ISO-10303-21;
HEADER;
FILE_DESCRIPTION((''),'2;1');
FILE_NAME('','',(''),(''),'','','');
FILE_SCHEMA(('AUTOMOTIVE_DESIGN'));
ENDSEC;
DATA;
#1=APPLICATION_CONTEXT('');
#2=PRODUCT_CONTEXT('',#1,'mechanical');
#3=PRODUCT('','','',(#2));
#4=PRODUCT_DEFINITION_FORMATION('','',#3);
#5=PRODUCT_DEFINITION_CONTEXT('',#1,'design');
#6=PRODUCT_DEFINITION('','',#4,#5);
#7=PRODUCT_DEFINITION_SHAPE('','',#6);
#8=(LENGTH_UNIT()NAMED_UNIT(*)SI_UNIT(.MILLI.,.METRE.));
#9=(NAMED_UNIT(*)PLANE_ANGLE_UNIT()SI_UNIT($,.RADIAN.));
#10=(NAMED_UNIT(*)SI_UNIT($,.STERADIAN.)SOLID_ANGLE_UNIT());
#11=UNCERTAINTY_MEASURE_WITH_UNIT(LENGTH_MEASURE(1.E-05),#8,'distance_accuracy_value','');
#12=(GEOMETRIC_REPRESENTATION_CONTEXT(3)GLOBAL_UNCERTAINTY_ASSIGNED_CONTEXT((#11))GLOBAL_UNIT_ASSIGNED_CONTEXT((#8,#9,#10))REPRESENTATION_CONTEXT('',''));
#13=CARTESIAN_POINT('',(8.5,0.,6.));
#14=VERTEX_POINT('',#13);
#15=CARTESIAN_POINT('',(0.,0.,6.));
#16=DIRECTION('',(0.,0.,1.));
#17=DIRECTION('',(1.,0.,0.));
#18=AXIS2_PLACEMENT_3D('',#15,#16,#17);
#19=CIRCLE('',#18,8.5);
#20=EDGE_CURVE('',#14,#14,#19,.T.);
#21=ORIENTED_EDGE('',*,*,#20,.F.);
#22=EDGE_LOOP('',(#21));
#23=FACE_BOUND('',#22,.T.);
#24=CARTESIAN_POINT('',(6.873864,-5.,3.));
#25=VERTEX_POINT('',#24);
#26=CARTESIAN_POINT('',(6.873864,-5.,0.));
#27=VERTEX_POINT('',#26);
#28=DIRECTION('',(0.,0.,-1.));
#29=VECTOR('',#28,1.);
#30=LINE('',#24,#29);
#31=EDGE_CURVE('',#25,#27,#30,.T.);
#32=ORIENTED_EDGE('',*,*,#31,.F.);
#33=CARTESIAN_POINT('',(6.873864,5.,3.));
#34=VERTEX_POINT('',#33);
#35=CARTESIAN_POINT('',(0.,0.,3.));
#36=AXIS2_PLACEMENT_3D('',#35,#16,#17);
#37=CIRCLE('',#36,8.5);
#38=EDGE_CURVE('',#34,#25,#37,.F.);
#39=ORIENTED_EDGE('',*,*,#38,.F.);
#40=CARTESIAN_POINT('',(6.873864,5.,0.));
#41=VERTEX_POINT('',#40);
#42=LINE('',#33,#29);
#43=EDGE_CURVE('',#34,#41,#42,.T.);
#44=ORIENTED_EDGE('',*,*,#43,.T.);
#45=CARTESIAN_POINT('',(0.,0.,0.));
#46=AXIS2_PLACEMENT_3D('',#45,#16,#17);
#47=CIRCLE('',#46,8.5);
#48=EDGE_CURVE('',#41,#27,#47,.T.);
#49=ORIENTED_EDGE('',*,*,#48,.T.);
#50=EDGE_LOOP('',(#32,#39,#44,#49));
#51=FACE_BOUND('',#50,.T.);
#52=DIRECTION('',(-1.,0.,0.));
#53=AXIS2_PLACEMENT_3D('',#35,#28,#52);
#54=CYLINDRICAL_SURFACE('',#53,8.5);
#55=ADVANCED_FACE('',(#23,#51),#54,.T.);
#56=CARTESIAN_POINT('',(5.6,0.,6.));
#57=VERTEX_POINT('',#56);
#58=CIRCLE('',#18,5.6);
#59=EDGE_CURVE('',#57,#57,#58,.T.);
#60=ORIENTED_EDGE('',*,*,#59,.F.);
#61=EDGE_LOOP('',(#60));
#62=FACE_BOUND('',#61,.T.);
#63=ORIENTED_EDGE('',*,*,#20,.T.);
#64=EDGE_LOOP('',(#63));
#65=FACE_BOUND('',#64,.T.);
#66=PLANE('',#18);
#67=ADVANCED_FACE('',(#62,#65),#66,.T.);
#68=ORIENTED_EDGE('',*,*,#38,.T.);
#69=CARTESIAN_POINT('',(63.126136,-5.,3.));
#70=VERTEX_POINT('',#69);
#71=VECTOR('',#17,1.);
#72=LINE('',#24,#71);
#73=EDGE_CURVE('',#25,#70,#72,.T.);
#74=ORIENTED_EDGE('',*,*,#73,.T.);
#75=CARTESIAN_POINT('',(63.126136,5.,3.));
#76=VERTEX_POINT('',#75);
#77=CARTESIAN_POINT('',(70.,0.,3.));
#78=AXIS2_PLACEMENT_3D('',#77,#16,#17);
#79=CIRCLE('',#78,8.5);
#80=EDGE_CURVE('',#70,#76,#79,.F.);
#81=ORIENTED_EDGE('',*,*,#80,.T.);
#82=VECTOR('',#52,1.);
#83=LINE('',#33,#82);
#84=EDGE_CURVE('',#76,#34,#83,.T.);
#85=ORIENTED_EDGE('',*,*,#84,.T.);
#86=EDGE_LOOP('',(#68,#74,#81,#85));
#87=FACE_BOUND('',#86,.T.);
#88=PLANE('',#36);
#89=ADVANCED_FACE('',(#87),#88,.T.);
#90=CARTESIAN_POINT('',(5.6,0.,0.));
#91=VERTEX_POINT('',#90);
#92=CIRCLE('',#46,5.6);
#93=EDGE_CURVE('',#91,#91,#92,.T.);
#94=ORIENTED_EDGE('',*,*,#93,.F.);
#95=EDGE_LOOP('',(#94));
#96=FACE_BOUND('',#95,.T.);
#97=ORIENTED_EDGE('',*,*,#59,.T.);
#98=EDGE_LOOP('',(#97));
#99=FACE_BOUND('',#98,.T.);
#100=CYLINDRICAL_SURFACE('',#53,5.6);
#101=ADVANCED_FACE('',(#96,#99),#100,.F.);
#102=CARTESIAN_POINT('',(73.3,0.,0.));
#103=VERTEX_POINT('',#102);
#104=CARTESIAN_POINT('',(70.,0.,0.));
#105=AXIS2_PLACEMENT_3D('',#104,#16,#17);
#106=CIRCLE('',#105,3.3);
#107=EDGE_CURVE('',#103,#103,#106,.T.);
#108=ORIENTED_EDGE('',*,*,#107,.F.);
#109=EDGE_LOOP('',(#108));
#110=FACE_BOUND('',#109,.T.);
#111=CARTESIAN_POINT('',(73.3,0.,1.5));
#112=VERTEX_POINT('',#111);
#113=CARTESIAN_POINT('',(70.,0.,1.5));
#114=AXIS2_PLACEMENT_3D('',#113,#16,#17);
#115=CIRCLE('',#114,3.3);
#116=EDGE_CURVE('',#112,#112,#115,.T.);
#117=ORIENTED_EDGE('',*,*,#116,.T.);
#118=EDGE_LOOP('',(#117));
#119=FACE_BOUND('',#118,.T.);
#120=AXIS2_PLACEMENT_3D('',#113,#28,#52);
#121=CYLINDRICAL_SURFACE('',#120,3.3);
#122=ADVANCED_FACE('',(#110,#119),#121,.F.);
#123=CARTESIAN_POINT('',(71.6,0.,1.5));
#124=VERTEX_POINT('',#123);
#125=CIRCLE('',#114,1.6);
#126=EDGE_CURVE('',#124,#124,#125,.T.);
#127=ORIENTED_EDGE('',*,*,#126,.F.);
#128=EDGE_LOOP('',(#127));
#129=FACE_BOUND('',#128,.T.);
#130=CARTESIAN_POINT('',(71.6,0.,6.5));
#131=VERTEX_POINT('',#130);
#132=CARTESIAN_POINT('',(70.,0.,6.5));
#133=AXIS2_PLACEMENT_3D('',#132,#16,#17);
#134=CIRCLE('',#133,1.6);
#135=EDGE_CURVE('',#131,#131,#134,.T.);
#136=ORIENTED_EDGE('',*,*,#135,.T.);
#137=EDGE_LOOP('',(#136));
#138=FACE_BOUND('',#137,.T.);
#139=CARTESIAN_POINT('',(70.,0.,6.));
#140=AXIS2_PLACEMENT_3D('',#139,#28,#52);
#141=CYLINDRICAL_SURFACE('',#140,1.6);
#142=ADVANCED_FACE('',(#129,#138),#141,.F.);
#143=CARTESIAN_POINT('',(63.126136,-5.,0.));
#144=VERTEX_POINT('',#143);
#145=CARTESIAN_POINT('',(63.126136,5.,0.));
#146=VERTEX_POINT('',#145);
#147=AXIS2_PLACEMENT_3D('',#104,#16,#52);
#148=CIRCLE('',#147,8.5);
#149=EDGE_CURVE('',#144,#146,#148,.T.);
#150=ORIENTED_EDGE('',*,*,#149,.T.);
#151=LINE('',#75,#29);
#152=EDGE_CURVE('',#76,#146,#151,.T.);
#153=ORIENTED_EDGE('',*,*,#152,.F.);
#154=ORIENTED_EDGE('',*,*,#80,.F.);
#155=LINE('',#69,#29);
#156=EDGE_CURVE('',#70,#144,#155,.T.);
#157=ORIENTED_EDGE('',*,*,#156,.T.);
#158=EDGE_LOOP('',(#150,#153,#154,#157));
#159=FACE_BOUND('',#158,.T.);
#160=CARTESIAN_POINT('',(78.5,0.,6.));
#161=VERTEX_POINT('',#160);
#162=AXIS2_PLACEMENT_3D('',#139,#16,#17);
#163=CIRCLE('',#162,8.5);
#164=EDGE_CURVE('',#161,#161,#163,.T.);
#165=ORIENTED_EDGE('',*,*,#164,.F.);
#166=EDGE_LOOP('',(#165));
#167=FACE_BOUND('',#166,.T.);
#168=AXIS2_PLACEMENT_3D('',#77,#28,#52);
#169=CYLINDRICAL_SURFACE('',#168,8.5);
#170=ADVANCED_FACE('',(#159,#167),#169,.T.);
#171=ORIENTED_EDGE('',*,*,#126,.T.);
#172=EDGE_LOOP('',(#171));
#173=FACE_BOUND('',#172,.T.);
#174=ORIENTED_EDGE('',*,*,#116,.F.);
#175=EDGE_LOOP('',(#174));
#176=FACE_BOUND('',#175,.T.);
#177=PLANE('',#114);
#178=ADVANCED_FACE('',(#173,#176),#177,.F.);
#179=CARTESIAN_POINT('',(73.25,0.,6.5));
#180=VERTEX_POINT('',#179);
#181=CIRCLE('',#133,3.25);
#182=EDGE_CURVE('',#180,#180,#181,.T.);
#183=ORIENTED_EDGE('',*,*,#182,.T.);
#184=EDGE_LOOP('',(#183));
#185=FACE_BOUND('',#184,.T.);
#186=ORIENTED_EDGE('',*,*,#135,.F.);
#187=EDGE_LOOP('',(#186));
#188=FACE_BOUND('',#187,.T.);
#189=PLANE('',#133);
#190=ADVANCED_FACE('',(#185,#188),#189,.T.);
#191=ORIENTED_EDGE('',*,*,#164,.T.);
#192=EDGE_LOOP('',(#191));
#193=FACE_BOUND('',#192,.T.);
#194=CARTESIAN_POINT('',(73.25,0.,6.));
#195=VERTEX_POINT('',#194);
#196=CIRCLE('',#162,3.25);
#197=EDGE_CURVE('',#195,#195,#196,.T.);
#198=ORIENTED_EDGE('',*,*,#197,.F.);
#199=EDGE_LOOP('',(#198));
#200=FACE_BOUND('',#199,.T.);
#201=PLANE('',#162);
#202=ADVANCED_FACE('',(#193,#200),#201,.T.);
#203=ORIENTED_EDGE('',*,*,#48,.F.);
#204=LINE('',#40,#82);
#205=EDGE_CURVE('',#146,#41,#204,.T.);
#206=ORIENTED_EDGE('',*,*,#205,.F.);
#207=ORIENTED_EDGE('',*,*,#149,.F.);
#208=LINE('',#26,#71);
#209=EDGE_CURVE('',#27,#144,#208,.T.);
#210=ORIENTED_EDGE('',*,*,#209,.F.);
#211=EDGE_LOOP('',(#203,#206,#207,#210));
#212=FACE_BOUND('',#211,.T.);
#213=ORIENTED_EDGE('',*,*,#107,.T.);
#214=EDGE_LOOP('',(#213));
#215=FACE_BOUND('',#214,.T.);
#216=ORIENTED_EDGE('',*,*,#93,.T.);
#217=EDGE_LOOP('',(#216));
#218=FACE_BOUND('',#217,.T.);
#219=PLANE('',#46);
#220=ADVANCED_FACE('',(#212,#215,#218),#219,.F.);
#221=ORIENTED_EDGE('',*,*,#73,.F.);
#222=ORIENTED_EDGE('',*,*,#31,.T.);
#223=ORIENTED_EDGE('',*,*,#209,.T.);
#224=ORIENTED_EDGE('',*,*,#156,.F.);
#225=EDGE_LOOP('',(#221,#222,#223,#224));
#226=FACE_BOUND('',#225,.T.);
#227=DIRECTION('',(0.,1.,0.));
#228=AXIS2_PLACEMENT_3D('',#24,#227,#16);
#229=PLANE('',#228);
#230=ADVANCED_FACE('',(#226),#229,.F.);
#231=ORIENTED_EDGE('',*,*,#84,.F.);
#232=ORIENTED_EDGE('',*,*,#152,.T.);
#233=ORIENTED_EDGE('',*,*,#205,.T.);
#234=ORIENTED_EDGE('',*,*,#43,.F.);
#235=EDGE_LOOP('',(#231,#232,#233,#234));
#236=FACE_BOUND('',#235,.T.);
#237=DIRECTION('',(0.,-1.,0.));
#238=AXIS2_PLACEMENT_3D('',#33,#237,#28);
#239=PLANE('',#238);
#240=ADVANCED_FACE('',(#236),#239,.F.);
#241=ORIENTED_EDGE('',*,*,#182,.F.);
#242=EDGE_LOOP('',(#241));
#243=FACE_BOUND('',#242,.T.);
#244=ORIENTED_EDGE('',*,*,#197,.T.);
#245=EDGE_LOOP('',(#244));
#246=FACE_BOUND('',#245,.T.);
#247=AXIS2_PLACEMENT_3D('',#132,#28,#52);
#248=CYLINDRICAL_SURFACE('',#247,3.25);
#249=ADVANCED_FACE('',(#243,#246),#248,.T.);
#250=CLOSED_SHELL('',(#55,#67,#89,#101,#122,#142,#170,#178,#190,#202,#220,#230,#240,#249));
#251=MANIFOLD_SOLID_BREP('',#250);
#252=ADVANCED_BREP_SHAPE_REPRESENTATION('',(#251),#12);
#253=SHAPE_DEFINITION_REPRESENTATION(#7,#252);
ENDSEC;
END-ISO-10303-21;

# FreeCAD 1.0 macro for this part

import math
import FreeCAD as App
import Part
import Sketcher
Q = App.Units.Quantity

doc = App.newDocument("Part")
body = doc.addObject("PartDesign::Body", "Body")

# Sketch on XY plane
sketch1 = body.newObject("Sketcher::SketchObject", "Sketch")
sketch1.AttachmentSupport = (doc.getObject("XY_Plane"), [""])
sketch1.MapMode = "FlatFace"
sketch1.addGeometry([
    Part.LineSegment(App.Vector(63, 5, 0), App.Vector(7, 5, 0)),  # 0
    Part.ArcOfCircle(Part.Circle(App.Vector(0, 0, 0), App.Vector(0, 0, 1), 8), math.radians(36), math.radians(324)),  # 1
    Part.LineSegment(App.Vector(7, -5, 0), App.Vector(63, -5, 0)),  # 2
    Part.ArcOfCircle(Part.Circle(App.Vector(70, 0, 0), App.Vector(0, 0, 1), 8), math.radians(-144), math.radians(144)),  # 3
    Part.Circle(App.Vector(0, 0, 0), App.Vector(0, 0, 1), 6),  # 4
], False)
sketch1.addConstraint([
    Sketcher.Constraint("Coincident", 0, 2, 1, 1),
    Sketcher.Constraint("Coincident", 1, 2, 2, 1),
    Sketcher.Constraint("Coincident", 2, 2, 3, 1),
    Sketcher.Constraint("Coincident", 3, 2, 0, 1),
    Sketcher.Constraint("Horizontal", 0),
    Sketcher.Constraint("Horizontal", 2),
    Sketcher.Constraint("Coincident", 1, 3, -1, 1),
    Sketcher.Constraint("Coincident", 4, 3, -1, 1),
    Sketcher.Constraint("Equal", 1, 3),
    Sketcher.Constraint("Symmetric", 2, 2, 3, 2, -1),
    Sketcher.Constraint("Diameter", 4, Q("11.2 mm")),
    Sketcher.Constraint("Radius", 1, Q("8.5 mm")),
    Sketcher.Constraint("DistanceX", -1, 1, 3, 3, Q("70 mm")),
    Sketcher.Constraint("DistanceY", -1, 1, 0, 2, Q("5 mm")),
])
pad1 = body.newObject("PartDesign::Pad", "Pad")
pad1.Profile = sketch1
pad1.Length = 3

# Sketch on XY plane
sketch2 = body.newObject("Sketcher::SketchObject", "Sketch001")
sketch2.AttachmentSupport = (doc.getObject("XY_Plane"), [""])
sketch2.MapMode = "FlatFace"
sketch2.addGeometry([
    Part.Circle(App.Vector(0, 0, 0), App.Vector(0, 0, 1), 8),
    Part.Circle(App.Vector(0, 0, 0), App.Vector(0, 0, 1), 6),
], False)
sketch2.addConstraint([
    Sketcher.Constraint("Coincident", 0, 3, -1, 1),
    Sketcher.Constraint("Coincident", 1, 3, -1, 1),
    Sketcher.Constraint("Diameter", 0, Q("17 mm")),
    Sketcher.Constraint("Diameter", 1, Q("11.2 mm")),
])
pad2 = body.newObject("PartDesign::Pad", "Pad001")
pad2.Profile = sketch2
pad2.Length = 6

# Sketch on XY plane
sketch3 = body.newObject("Sketcher::SketchObject", "Sketch002")
sketch3.AttachmentSupport = (doc.getObject("XY_Plane"), [""])
sketch3.MapMode = "FlatFace"
sketch3.addGeometry(Part.Circle(App.Vector(70, 0, 0), App.Vector(0, 0, 1), 8), False)
sketch3.addConstraint([
    Sketcher.Constraint("PointOnObject", 0, 3, -1),
    Sketcher.Constraint("Diameter", 0, Q("17 mm")),
    Sketcher.Constraint("DistanceX", -1, 1, 0, 3, Q("70 mm")),
])
pad3 = body.newObject("PartDesign::Pad", "Pad002")
pad3.Profile = sketch3
pad3.Length = 6

# Sketch on XY plane
sketch4 = body.newObject("Sketcher::SketchObject", "Sketch003")
sketch4.AttachmentSupport = (doc.getObject("XY_Plane"), [""])
sketch4.MapMode = "FlatFace"
sketch4.addGeometry(Part.Circle(App.Vector(70, 0, 0), App.Vector(0, 0, 1), 1.6), False)
sketch4.addConstraint([
    Sketcher.Constraint("PointOnObject", 0, 3, -1),
    Sketcher.Constraint("Diameter", 0, Q("3.2 mm")),
    Sketcher.Constraint("DistanceX", -1, 1, 0, 3, Q("70 mm")),
])
pocket1 = body.newObject("PartDesign::Pocket", "Pocket")
pocket1.Profile = sketch4
pocket1.Type = "ThroughAll"
pocket1.Reversed = True

# Sketch on XY plane
sketch5 = body.newObject("Sketcher::SketchObject", "Sketch004")
sketch5.AttachmentSupport = (doc.getObject("XY_Plane"), [""])
sketch5.MapMode = "FlatFace"
sketch5.addGeometry(Part.Circle(App.Vector(70, 0, 0), App.Vector(0, 0, 1), 3.3), False)
sketch5.addConstraint([
    Sketcher.Constraint("PointOnObject", 0, 3, -1),
    Sketcher.Constraint("Diameter", 0, Q("6.6 mm")),
    Sketcher.Constraint("DistanceX", -1, 1, 0, 3, Q("70 mm")),
])
pocket2 = body.newObject("PartDesign::Pocket", "Pocket001")
pocket2.Profile = sketch5
pocket2.Length = 1.5
pocket2.Reversed = True

# Sketch on XY plane
sketch6 = body.newObject("Sketcher::SketchObject", "Sketch005")
sketch6.AttachmentSupport = (doc.getObject("XY_Plane"), [""])
sketch6.MapMode = "FlatFace"
sketch6.AttachmentOffset = App.Placement(App.Vector(0, 0, 6), App.Rotation())
sketch6.addGeometry([
    Part.Circle(App.Vector(70, 0, 0), App.Vector(0, 0, 1), 3.2),
    Part.Circle(App.Vector(70, 0, 0), App.Vector(0, 0, 1), 1.6),
], False)
sketch6.addConstraint([
    Sketcher.Constraint("Coincident", 1, 3, 0, 3),
    Sketcher.Constraint("PointOnObject", 0, 3, -1),
    Sketcher.Constraint("Diameter", 0, Q("6.5 mm")),
    Sketcher.Constraint("Diameter", 1, Q("3.2 mm")),
    Sketcher.Constraint("DistanceX", -1, 1, 0, 3, Q("70 mm")),
])
pad4 = body.newObject("PartDesign::Pad", "Pad003")
pad4.Profile = sketch6
pad4.Length = 0.5

doc.recompute()
